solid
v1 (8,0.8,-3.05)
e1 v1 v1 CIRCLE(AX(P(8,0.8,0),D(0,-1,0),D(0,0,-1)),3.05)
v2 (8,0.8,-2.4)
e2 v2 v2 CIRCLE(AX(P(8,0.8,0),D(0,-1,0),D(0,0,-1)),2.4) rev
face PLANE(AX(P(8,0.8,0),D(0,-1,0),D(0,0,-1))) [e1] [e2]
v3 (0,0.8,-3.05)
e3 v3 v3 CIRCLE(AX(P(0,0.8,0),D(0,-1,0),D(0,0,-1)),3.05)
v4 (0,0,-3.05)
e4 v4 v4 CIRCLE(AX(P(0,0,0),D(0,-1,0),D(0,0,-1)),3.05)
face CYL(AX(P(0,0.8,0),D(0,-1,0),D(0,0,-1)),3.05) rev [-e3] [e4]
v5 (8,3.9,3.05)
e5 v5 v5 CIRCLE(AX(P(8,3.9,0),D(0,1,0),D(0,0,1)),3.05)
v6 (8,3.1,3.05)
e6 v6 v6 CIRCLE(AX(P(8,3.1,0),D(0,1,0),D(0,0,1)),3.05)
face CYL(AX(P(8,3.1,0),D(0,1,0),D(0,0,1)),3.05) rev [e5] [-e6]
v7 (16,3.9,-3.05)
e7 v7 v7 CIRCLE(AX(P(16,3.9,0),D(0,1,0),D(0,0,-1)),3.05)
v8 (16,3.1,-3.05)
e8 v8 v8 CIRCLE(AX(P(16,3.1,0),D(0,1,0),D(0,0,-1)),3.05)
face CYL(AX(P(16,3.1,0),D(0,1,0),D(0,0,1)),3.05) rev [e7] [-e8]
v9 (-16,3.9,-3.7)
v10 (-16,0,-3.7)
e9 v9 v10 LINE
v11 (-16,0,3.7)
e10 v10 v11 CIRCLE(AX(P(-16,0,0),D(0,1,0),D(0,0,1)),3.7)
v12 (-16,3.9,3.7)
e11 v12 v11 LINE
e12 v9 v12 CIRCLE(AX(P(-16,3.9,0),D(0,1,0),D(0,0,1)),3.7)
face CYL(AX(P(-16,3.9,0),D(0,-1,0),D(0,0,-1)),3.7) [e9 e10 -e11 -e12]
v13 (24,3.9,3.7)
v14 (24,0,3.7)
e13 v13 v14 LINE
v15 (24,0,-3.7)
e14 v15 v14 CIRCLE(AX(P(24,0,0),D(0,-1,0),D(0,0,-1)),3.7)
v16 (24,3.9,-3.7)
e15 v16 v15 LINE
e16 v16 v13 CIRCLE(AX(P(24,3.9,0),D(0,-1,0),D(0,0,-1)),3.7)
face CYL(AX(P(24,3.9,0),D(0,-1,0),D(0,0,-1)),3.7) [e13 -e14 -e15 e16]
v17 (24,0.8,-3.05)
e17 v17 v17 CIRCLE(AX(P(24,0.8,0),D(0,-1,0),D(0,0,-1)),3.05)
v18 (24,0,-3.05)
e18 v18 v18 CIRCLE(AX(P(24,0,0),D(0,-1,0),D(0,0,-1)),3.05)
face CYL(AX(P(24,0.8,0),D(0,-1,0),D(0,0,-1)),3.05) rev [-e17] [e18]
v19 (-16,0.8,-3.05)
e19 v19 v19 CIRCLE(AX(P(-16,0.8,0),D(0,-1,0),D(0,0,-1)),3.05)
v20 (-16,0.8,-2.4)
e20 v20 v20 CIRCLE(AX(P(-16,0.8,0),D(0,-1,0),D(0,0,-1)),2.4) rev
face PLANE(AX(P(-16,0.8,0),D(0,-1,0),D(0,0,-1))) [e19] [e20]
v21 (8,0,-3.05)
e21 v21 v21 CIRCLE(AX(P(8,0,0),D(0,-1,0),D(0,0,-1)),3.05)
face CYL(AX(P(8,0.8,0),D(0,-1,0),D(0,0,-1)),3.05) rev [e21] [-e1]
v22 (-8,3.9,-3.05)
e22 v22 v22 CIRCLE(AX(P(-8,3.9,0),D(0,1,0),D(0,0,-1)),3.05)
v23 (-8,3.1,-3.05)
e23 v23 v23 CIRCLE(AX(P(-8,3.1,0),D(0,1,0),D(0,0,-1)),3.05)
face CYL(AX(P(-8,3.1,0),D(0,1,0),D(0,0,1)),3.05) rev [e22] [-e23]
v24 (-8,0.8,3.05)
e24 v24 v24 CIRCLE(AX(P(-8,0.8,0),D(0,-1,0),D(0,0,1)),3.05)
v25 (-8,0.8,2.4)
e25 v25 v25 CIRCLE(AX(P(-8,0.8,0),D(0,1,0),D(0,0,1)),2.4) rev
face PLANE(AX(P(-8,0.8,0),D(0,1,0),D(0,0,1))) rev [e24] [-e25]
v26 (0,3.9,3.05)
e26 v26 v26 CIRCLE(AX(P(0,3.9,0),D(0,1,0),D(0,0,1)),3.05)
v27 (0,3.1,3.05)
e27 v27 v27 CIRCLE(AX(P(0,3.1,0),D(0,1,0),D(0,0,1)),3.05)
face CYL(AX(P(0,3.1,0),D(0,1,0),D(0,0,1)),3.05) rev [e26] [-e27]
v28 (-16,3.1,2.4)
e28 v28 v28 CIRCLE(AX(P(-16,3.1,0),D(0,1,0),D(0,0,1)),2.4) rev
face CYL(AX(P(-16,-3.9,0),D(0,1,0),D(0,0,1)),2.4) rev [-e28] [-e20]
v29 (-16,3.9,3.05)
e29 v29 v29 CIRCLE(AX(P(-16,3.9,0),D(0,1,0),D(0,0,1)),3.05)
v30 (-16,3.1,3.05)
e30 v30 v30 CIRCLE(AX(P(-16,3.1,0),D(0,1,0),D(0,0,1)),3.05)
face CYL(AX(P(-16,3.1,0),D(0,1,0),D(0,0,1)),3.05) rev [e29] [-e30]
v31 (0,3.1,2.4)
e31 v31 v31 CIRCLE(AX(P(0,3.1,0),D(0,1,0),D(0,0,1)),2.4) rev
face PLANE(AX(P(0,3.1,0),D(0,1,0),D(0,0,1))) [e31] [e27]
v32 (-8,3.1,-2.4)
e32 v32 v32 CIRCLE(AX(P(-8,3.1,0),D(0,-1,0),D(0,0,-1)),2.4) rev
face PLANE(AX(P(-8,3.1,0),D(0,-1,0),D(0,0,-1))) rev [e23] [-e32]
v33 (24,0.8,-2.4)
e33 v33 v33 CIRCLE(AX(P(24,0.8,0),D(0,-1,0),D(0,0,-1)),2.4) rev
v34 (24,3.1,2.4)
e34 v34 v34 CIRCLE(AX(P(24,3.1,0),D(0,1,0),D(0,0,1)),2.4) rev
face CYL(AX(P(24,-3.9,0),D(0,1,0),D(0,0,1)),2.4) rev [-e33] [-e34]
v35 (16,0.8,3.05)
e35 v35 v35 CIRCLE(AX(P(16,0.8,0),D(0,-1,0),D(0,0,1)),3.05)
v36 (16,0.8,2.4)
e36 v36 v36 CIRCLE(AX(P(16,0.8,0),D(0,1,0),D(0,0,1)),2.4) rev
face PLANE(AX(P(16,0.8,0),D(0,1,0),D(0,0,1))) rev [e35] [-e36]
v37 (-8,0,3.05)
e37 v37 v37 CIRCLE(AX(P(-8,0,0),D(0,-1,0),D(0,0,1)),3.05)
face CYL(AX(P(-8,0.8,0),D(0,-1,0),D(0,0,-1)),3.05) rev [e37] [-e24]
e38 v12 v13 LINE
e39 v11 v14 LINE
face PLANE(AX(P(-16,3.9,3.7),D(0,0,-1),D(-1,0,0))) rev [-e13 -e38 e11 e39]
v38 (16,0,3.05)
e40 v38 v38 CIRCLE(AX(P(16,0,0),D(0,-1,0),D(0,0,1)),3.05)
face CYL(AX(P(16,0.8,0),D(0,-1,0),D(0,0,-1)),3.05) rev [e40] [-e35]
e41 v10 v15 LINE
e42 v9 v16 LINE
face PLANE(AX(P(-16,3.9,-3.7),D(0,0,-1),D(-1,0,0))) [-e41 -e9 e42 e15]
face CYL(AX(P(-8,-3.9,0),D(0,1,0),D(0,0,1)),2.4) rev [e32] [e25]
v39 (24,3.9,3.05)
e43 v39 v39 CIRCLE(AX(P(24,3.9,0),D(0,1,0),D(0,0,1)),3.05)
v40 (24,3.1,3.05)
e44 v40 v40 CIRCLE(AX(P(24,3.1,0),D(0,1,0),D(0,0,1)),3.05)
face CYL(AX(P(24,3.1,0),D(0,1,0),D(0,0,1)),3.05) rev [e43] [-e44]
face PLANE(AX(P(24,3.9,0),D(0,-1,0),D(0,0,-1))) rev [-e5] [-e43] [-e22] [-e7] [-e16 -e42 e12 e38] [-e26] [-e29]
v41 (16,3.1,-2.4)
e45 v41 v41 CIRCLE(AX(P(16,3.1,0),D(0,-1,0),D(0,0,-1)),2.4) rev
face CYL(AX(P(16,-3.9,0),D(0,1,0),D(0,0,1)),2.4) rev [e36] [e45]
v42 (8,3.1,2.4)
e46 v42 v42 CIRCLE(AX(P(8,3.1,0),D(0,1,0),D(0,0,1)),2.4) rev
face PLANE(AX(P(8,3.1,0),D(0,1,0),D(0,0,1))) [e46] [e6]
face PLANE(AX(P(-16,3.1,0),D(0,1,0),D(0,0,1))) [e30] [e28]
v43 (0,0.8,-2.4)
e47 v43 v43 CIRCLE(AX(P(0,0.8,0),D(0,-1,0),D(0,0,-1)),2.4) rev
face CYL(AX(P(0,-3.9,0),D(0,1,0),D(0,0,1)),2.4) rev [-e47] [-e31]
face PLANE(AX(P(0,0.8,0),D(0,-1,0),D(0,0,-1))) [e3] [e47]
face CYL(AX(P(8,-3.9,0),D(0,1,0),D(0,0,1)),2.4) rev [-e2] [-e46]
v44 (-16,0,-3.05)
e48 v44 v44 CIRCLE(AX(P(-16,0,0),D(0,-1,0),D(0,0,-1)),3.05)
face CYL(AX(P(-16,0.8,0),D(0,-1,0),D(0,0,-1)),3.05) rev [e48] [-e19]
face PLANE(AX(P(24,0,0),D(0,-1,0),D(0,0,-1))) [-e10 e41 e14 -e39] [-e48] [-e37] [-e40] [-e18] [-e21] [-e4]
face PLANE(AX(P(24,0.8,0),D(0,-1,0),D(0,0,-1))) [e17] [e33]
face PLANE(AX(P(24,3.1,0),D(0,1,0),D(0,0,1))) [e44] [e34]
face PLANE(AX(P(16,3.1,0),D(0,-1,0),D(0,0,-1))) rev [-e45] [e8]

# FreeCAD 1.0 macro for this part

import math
import FreeCAD as App
import Part
import Sketcher

V = App.Vector

doc = App.newDocument("Part")
params = doc.addObject("Spreadsheet::Sheet", "Params")
for row, (alias, value) in enumerate([
    ("sketch1_radius", "3.7 mm"),
    ("sketch1_width", "40 mm"),
    ("pad1_length", "3.9 mm"),
    ("sketch2_diameter", "4.8 mm"),
    ("pocket1_length", "7.8 mm"),
    ("sketch3_diameter", "6.1 mm"),
    ("pocket2_length", "0.8 mm"),
    ("sketch4_diameter", "6.1 mm"),
    ("pocket3_length", "0.8 mm"),
], start=1):
    params.set(f"A{row}", alias)
    params.set(f"B{row}", "=" + value)
    params.setAlias(f"B{row}", alias)

body = doc.addObject("PartDesign::Body", "Body")

# Sketch on XZ plane
sketch1 = doc.addObject("Sketcher::SketchObject", "Sketch")
body.addObject(sketch1)
sketch1.AttachmentSupport = (doc.XZ_Plane, [""])
sketch1.MapMode = "FlatFace"
sketch1.addGeometry([
    Part.LineSegment(V(-16, 3.7, 0), V(24, 3.7, 0)),
    Part.ArcOfCircle(Part.Circle(V(24, 0, 0), V(0, 0, 1), 3.7), math.radians(-90), math.radians(90)),
    Part.LineSegment(V(24, -3.7, 0), V(-16, -3.7, 0)),
    Part.ArcOfCircle(Part.Circle(V(-16, 0, 0), V(0, 0, 1), 3.7), math.radians(90), math.radians(270)),
], False)
sketch1.addConstraint([
    Sketcher.Constraint("Tangent", 0, 2, 1, 2),
    Sketcher.Constraint("Tangent", 1, 1, 2, 1),
    Sketcher.Constraint("Tangent", 2, 2, 3, 2),
    Sketcher.Constraint("Tangent", 3, 1, 0, 1),
    Sketcher.Constraint("Horizontal", 0),
    Sketcher.Constraint("Horizontal", 2),
    Sketcher.Constraint("PointOnObject", 1, 3, -1),
    Sketcher.Constraint("Radius", 1, 3.7),
    Sketcher.Constraint("DistanceX", 0, 1, 0, 2, 40.0),
    Sketcher.Constraint("DistanceX", -1, 1, 1, 3, 24.0),
])
sketch1.setExpression("Constraints[7]", "Params.sketch1_radius")
sketch1.setExpression("Constraints[8]", "Params.sketch1_width")
pad1 = doc.addObject("PartDesign::Pad", "Pad")
body.addObject(pad1)
pad1.Profile = sketch1
pad1.setExpression("Length", "Params.pad1_length")
pad1.Reversed = True

# Sketch on XZ plane
sketch2 = doc.addObject("Sketcher::SketchObject", "Sketch001")
body.addObject(sketch2)
sketch2.AttachmentSupport = (doc.XZ_Plane, [""])
sketch2.MapMode = "FlatFace"
sketch2.AttachmentOffset = App.Placement(V(0, 0, -3.9), App.Rotation())
sketch2.addGeometry([
    Part.Circle(V(0, 0, 0), V(0, 0, 1), 2.4),  # 0
    Part.Circle(V(8, 0, 0), V(0, 0, 1), 2.4),  # 1
    Part.Circle(V(16, 0, 0), V(0, 0, 1), 2.4),  # 2
    Part.Circle(V(-16, 0, 0), V(0, 0, 1), 2.4),  # 3
    Part.Circle(V(-8, 0, 0), V(0, 0, 1), 2.4),  # 4
    Part.Circle(V(24, 0, 0), V(0, 0, 1), 2.4),  # 5
], False)
sketch2.addConstraint([
    Sketcher.Constraint("Coincident", 0, 3, -1, 1),
    Sketcher.Constraint("Equal", 0, 1),
    Sketcher.Constraint("Equal", 1, 2),
    Sketcher.Constraint("Equal", 2, 3),
    Sketcher.Constraint("Equal", 3, 4),
    Sketcher.Constraint("Equal", 4, 5),
    Sketcher.Constraint("Symmetric", 2, 3, 3, 3, -1, 1),
    Sketcher.Constraint("Symmetric", 1, 3, 4, 3, -1, 1),
    Sketcher.Constraint("PointOnObject", 1, 3, -1),
    Sketcher.Constraint("PointOnObject", 2, 3, -1),
    Sketcher.Constraint("PointOnObject", 5, 3, -1),
    Sketcher.Constraint("Diameter", 0, 4.8),
    Sketcher.Constraint("DistanceX", -1, 1, 1, 3, 8.0),
    Sketcher.Constraint("DistanceX", -1, 1, 2, 3, 16.0),
    Sketcher.Constraint("DistanceX", -1, 1, 5, 3, 24.0),
])
sketch2.setExpression("Constraints[11]", "Params.sketch2_diameter")
pocket1 = doc.addObject("PartDesign::Pocket", "Pocket")
body.addObject(pocket1)
pocket1.Profile = sketch2
pocket1.setExpression("Length", "Params.pocket1_length")
pocket1.Reversed = True

# Sketch on XZ plane
sketch3 = doc.addObject("Sketcher::SketchObject", "Sketch002")
body.addObject(sketch3)
sketch3.AttachmentSupport = (doc.XZ_Plane, [""])
sketch3.MapMode = "FlatFace"
sketch3.AttachmentOffset = App.Placement(V(0, 0, -3.9), App.Rotation())
sketch3.addGeometry([
    Part.Circle(V(0, 0, 0), V(0, 0, 1), 3.05),  # 0
    Part.Circle(V(8, 0, 0), V(0, 0, 1), 3.05),  # 1
    Part.Circle(V(16, 0, 0), V(0, 0, 1), 3.05),  # 2
    Part.Circle(V(-16, 0, 0), V(0, 0, 1), 3.05),  # 3
    Part.Circle(V(-8, 0, 0), V(0, 0, 1), 3.05),  # 4
    Part.Circle(V(24, 0, 0), V(0, 0, 1), 3.05),  # 5
], False)
sketch3.addConstraint([
    Sketcher.Constraint("Coincident", 0, 3, -1, 1),
    Sketcher.Constraint("Equal", 0, 1),
    Sketcher.Constraint("Equal", 1, 2),
    Sketcher.Constraint("Equal", 2, 3),
    Sketcher.Constraint("Equal", 3, 4),
    Sketcher.Constraint("Equal", 4, 5),
    Sketcher.Constraint("Symmetric", 2, 3, 3, 3, -1, 1),
    Sketcher.Constraint("Symmetric", 1, 3, 4, 3, -1, 1),
    Sketcher.Constraint("PointOnObject", 1, 3, -1),
    Sketcher.Constraint("PointOnObject", 2, 3, -1),
    Sketcher.Constraint("PointOnObject", 5, 3, -1),
    Sketcher.Constraint("Diameter", 0, 6.1),
    Sketcher.Constraint("DistanceX", -1, 1, 1, 3, 8.0),
    Sketcher.Constraint("DistanceX", -1, 1, 2, 3, 16.0),
    Sketcher.Constraint("DistanceX", -1, 1, 5, 3, 24.0),
])
sketch3.setExpression("Constraints[11]", "Params.sketch3_diameter")
pocket2 = doc.addObject("PartDesign::Pocket", "Pocket001")
body.addObject(pocket2)
pocket2.Profile = sketch3
pocket2.setExpression("Length", "Params.pocket2_length")
pocket2.Reversed = True

# Sketch on XZ plane
sketch4 = doc.addObject("Sketcher::SketchObject", "Sketch003")
body.addObject(sketch4)
sketch4.AttachmentSupport = (doc.XZ_Plane, [""])
sketch4.MapMode = "FlatFace"
sketch4.addGeometry([
    Part.Circle(V(0, 0, 0), V(0, 0, 1), 3.05),  # 0
    Part.Circle(V(8, 0, 0), V(0, 0, 1), 3.05),  # 1
    Part.Circle(V(16, 0, 0), V(0, 0, 1), 3.05),  # 2
    Part.Circle(V(-16, 0, 0), V(0, 0, 1), 3.05),  # 3
    Part.Circle(V(-8, 0, 0), V(0, 0, 1), 3.05),  # 4
    Part.Circle(V(24, 0, 0), V(0, 0, 1), 3.05),  # 5
], False)
sketch4.addConstraint([
    Sketcher.Constraint("Coincident", 0, 3, -1, 1),
    Sketcher.Constraint("Equal", 0, 1),
    Sketcher.Constraint("Equal", 1, 2),
    Sketcher.Constraint("Equal", 2, 3),
    Sketcher.Constraint("Equal", 3, 4),
    Sketcher.Constraint("Equal", 4, 5),
    Sketcher.Constraint("Symmetric", 2, 3, 3, 3, -1, 1),
    Sketcher.Constraint("Symmetric", 1, 3, 4, 3, -1, 1),
    Sketcher.Constraint("PointOnObject", 1, 3, -1),
    Sketcher.Constraint("PointOnObject", 2, 3, -1),
    Sketcher.Constraint("PointOnObject", 5, 3, -1),
    Sketcher.Constraint("Diameter", 0, 6.1),
    Sketcher.Constraint("DistanceX", -1, 1, 1, 3, 8.0),
    Sketcher.Constraint("DistanceX", -1, 1, 2, 3, 16.0),
    Sketcher.Constraint("DistanceX", -1, 1, 5, 3, 24.0),
])
sketch4.setExpression("Constraints[11]", "Params.sketch4_diameter")
pocket3 = doc.addObject("PartDesign::Pocket", "Pocket002")
body.addObject(pocket3)
pocket3.Profile = sketch4
pocket3.setExpression("Length", "Params.pocket3_length")

doc.recompute()
